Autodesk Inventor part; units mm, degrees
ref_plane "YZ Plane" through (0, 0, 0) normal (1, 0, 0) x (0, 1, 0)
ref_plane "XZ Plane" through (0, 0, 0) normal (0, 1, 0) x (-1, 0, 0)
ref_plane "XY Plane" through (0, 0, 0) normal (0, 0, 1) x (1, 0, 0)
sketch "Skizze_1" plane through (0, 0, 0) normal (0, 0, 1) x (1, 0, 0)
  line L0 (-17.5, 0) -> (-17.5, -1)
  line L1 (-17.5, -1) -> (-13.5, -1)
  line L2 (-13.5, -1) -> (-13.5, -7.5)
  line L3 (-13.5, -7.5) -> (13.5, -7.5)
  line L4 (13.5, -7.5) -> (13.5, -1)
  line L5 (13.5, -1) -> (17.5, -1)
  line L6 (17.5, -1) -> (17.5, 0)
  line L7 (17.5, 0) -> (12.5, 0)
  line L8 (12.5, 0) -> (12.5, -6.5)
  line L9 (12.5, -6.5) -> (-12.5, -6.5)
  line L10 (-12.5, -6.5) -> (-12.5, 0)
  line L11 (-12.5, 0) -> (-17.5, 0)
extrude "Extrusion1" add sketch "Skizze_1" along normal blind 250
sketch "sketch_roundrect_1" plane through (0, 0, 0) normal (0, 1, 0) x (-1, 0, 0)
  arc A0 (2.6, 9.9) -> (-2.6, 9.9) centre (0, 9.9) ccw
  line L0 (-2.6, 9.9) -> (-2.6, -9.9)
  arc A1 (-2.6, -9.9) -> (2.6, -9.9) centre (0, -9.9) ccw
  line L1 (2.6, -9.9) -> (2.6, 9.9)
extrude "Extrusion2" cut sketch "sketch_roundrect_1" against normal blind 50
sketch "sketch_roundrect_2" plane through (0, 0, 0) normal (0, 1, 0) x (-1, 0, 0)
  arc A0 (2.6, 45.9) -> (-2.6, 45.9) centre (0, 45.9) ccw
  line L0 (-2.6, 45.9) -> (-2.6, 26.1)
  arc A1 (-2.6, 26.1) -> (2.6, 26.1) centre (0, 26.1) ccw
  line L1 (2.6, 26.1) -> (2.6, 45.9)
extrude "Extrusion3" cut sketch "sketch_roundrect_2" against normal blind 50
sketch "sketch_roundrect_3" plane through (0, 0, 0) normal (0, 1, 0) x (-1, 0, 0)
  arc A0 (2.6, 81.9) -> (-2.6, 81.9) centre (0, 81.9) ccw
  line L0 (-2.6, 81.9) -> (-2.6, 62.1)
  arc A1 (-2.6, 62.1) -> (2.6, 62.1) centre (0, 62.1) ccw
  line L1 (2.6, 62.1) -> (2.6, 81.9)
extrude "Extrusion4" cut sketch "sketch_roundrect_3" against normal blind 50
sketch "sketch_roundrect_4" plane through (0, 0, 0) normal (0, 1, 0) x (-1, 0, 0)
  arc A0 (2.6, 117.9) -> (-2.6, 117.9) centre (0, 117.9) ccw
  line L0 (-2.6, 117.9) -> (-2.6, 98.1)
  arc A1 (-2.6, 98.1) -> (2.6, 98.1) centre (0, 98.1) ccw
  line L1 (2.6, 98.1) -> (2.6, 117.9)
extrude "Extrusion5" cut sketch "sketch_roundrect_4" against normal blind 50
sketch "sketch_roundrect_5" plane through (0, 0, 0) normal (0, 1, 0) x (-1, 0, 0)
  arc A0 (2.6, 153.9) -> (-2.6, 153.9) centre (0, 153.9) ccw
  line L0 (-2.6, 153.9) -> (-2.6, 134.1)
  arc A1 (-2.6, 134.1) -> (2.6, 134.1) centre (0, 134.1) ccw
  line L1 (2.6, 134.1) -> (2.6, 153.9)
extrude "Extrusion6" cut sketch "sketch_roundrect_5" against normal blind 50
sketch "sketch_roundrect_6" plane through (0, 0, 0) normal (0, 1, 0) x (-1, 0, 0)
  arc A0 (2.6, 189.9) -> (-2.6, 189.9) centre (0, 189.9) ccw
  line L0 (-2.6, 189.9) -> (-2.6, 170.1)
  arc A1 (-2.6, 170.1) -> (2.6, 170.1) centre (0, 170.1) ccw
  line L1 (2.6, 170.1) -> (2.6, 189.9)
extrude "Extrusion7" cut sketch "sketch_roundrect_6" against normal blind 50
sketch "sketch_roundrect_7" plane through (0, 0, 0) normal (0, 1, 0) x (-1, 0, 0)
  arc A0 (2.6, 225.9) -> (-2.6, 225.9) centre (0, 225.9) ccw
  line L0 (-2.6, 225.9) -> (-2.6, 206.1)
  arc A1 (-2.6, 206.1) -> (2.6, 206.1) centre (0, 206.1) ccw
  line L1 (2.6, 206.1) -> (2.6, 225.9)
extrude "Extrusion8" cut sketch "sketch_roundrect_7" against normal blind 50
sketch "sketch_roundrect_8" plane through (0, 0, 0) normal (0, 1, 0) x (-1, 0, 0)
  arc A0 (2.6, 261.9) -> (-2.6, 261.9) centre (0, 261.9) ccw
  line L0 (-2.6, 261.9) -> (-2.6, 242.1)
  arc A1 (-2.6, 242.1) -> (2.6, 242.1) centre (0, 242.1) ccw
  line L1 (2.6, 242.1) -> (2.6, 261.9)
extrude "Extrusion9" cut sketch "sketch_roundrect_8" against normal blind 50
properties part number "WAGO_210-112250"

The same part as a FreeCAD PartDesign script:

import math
import FreeCAD as App
import Part
import Sketcher
from FreeCAD import Vector

doc = App.newDocument("Part")
body = doc.addObject("PartDesign::Body", "Body")

# Sketch on XY plane
sketch1 = doc.addObject("Sketcher::SketchObject", "Sketch")
body.addObject(sketch1)
sketch1.AttachmentSupport = (doc.XY_Plane, [""])
sketch1.MapMode = "FlatFace"
sketch1.addGeometry(Part.LineSegment(Vector(-12.5, 0, 0), Vector(-17.5, 0, 0)), False)
sketch1.addGeometry(Part.LineSegment(Vector(-17.5, 0, 0), Vector(-17.5, -1, 0)), False)
sketch1.addGeometry(Part.LineSegment(Vector(-17.5, -1, 0), Vector(-13.5, -1, 0)), False)
sketch1.addGeometry(Part.LineSegment(Vector(-13.5, -1, 0), Vector(-13.5, -7.5, 0)), False)
sketch1.addGeometry(Part.LineSegment(Vector(-13.5, -7.5, 0), Vector(13.5, -7.5, 0)), False)
sketch1.addGeometry(Part.LineSegment(Vector(13.5, -7.5, 0), Vector(13.5, -1, 0)), False)
sketch1.addGeometry(Part.LineSegment(Vector(13.5, -1, 0), Vector(17.5, -1, 0)), False)
sketch1.addGeometry(Part.LineSegment(Vector(17.5, -1, 0), Vector(17.5, 0, 0)), False)
sketch1.addGeometry(Part.LineSegment(Vector(17.5, 0, 0), Vector(12.5, 0, 0)), False)
sketch1.addGeometry(Part.LineSegment(Vector(12.5, 0, 0), Vector(12.5, -6.5, 0)), False)
sketch1.addGeometry(Part.LineSegment(Vector(12.5, -6.5, 0), Vector(-12.5, -6.5, 0)), False)
sketch1.addGeometry(Part.LineSegment(Vector(-12.5, -6.5, 0), Vector(-12.5, 0, 0)), False)
sketch1.addConstraint(Sketcher.Constraint("Coincident", 0, 2, 1, 1))
sketch1.addConstraint(Sketcher.Constraint("Coincident", 1, 2, 2, 1))
sketch1.addConstraint(Sketcher.Constraint("Coincident", 2, 2, 3, 1))
sketch1.addConstraint(Sketcher.Constraint("Coincident", 3, 2, 4, 1))
sketch1.addConstraint(Sketcher.Constraint("Coincident", 4, 2, 5, 1))
sketch1.addConstraint(Sketcher.Constraint("Coincident", 5, 2, 6, 1))
sketch1.addConstraint(Sketcher.Constraint("Coincident", 6, 2, 7, 1))
sketch1.addConstraint(Sketcher.Constraint("Coincident", 7, 2, 8, 1))
sketch1.addConstraint(Sketcher.Constraint("Coincident", 8, 2, 9, 1))
sketch1.addConstraint(Sketcher.Constraint("Coincident", 9, 2, 10, 1))
sketch1.addConstraint(Sketcher.Constraint("Coincident", 10, 2, 11, 1))
sketch1.addConstraint(Sketcher.Constraint("Coincident", 11, 2, 0, 1))
sketch1.addConstraint(Sketcher.Constraint("Horizontal", 0))
sketch1.addConstraint(Sketcher.Constraint("Vertical", 1))
sketch1.addConstraint(Sketcher.Constraint("Horizontal", 2))
sketch1.addConstraint(Sketcher.Constraint("Vertical", 3))
sketch1.addConstraint(Sketcher.Constraint("Horizontal", 4))
sketch1.addConstraint(Sketcher.Constraint("Vertical", 5))
sketch1.addConstraint(Sketcher.Constraint("Horizontal", 6))
sketch1.addConstraint(Sketcher.Constraint("Vertical", 7))
sketch1.addConstraint(Sketcher.Constraint("Horizontal", 8))
sketch1.addConstraint(Sketcher.Constraint("Vertical", 9))
sketch1.addConstraint(Sketcher.Constraint("Horizontal", 10))
sketch1.addConstraint(Sketcher.Constraint("Vertical", 11))
sketch1.addConstraint(Sketcher.Constraint("Symmetric", 0, 2, 7, 2, -1, 1))
sketch1.addConstraint(Sketcher.Constraint("Symmetric", 2, 2, 5, 2, -2))
sketch1.addConstraint(Sketcher.Constraint("Symmetric", 8, 2, 11, 2, -2))
sketch1.addConstraint(Sketcher.Constraint("Equal", 5, 9))
sketch1.addConstraint(Sketcher.Constraint("DistanceX", 0, 2, 0, 1, 5.0))
sketch1.addConstraint(Sketcher.Constraint("DistanceX", 2, 1, 2, 2, 4.0))
sketch1.addConstraint(Sketcher.Constraint("DistanceX", 4, 1, 4, 2, 27.0))
sketch1.addConstraint(Sketcher.Constraint("DistanceY", 1, 2, 1, 1, 1.0))
sketch1.addConstraint(Sketcher.Constraint("DistanceY", 3, 2, 3, 1, 6.5))
pad1 = doc.addObject("PartDesign::Pad", "Pad")
body.addObject(pad1)
pad1.Profile = sketch1
pad1.Length = 250

# Sketch on XZ plane
sketch2 = doc.addObject("Sketcher::SketchObject", "Sketch001")
body.addObject(sketch2)
sketch2.AttachmentSupport = (doc.XZ_Plane, [""])
sketch2.MapMode = "FlatFace"
sketch2.addGeometry(Part.LineSegment(Vector(-2.6, -9.9, 0), Vector(-2.6, 9.9, 0)), False)
sketch2.addGeometry(Part.ArcOfCircle(Part.Circle(Vector(0, 9.9, 0), Vector(0, 0, 1), 2.6), math.radians(0), math.radians(180)), False)
sketch2.addGeometry(Part.LineSegment(Vector(2.6, 9.9, 0), Vector(2.6, -9.9, 0)), False)
sketch2.addGeometry(Part.ArcOfCircle(Part.Circle(Vector(0, -9.9, 0), Vector(0, 0, 1), 2.6), math.radians(180), math.radians(360)), False)
sketch2.addConstraint(Sketcher.Constraint("Tangent", 0, 2, 1, 2))
sketch2.addConstraint(Sketcher.Constraint("Tangent", 1, 1, 2, 1))
sketch2.addConstraint(Sketcher.Constraint("Tangent", 2, 2, 3, 2))
sketch2.addConstraint(Sketcher.Constraint("Tangent", 3, 1, 0, 1))
sketch2.addConstraint(Sketcher.Constraint("Vertical", 0))
sketch2.addConstraint(Sketcher.Constraint("Vertical", 2))
sketch2.addConstraint(Sketcher.Constraint("Symmetric", 1, 3, 3, 3, -1, 1))
sketch2.addConstraint(Sketcher.Constraint("Radius", 1, 2.6))
sketch2.addConstraint(Sketcher.Constraint("DistanceY", 0, 1, 0, 2, 19.8))
pocket1 = doc.addObject("PartDesign::Pocket", "Pocket")
body.addObject(pocket1)
pocket1.Profile = sketch2
pocket1.Length = 50
pocket1.Reversed = True

# Sketch on XZ plane
sketch3 = doc.addObject("Sketcher::SketchObject", "Sketch002")
body.addObject(sketch3)
sketch3.AttachmentSupport = (doc.XZ_Plane, [""])
sketch3.MapMode = "FlatFace"
sketch3.addGeometry(Part.LineSegment(Vector(-2.6, 26.1, 0), Vector(-2.6, 45.9, 0)), False)
sketch3.addGeometry(Part.ArcOfCircle(Part.Circle(Vector(0, 45.9, 0), Vector(0, 0, 1), 2.6), math.radians(0), math.radians(180)), False)
sketch3.addGeometry(Part.LineSegment(Vector(2.6, 45.9, 0), Vector(2.6, 26.1, 0)), False)
sketch3.addGeometry(Part.ArcOfCircle(Part.Circle(Vector(0, 26.1, 0), Vector(0, 0, 1), 2.6), math.radians(180), math.radians(360)), False)
sketch3.addConstraint(Sketcher.Constraint("Tangent", 0, 2, 1, 2))
sketch3.addConstraint(Sketcher.Constraint("Tangent", 1, 1, 2, 1))
sketch3.addConstraint(Sketcher.Constraint("Tangent", 2, 2, 3, 2))
sketch3.addConstraint(Sketcher.Constraint("Tangent", 3, 1, 0, 1))
sketch3.addConstraint(Sketcher.Constraint("Vertical", 0))
sketch3.addConstraint(Sketcher.Constraint("Vertical", 2))
sketch3.addConstraint(Sketcher.Constraint("PointOnObject", 1, 3, -2))
sketch3.addConstraint(Sketcher.Constraint("Radius", 1, 2.6))
sketch3.addConstraint(Sketcher.Constraint("DistanceY", 0, 1, 0, 2, 19.8))
sketch3.addConstraint(Sketcher.Constraint("DistanceY", -1, 1, 1, 3, 45.9))
pocket2 = doc.addObject("PartDesign::Pocket", "Pocket001")
body.addObject(pocket2)
pocket2.Profile = sketch3
pocket2.Length = 50
pocket2.Reversed = True

# Sketch on XZ plane
sketch4 = doc.addObject("Sketcher::SketchObject", "Sketch003")
body.addObject(sketch4)
sketch4.AttachmentSupport = (doc.XZ_Plane, [""])
sketch4.MapMode = "FlatFace"
sketch4.addGeometry(Part.LineSegment(Vector(-2.6, 62.1, 0), Vector(-2.6, 81.9, 0)), False)
sketch4.addGeometry(Part.ArcOfCircle(Part.Circle(Vector(0, 81.9, 0), Vector(0, 0, 1), 2.6), math.radians(0), math.radians(180)), False)
sketch4.addGeometry(Part.LineSegment(Vector(2.6, 81.9, 0), Vector(2.6, 62.1, 0)), False)
sketch4.addGeometry(Part.ArcOfCircle(Part.Circle(Vector(0, 62.1, 0), Vector(0, 0, 1), 2.6), math.radians(180), math.radians(360)), False)
sketch4.addConstraint(Sketcher.Constraint("Tangent", 0, 2, 1, 2))
sketch4.addConstraint(Sketcher.Constraint("Tangent", 1, 1, 2, 1))
sketch4.addConstraint(Sketcher.Constraint("Tangent", 2, 2, 3, 2))
sketch4.addConstraint(Sketcher.Constraint("Tangent", 3, 1, 0, 1))
sketch4.addConstraint(Sketcher.Constraint("Vertical", 0))
sketch4.addConstraint(Sketcher.Constraint("Vertical", 2))
sketch4.addConstraint(Sketcher.Constraint("PointOnObject", 1, 3, -2))
sketch4.addConstraint(Sketcher.Constraint("Radius", 1, 2.6))
sketch4.addConstraint(Sketcher.Constraint("DistanceY", 0, 1, 0, 2, 19.8))
sketch4.addConstraint(Sketcher.Constraint("DistanceY", -1, 1, 1, 3, 81.9))
pocket3 = doc.addObject("PartDesign::Pocket", "Pocket002")
body.addObject(pocket3)
pocket3.Profile = sketch4
pocket3.Length = 50
pocket3.Reversed = True

# Sketch on XZ plane
sketch5 = doc.addObject("Sketcher::SketchObject", "Sketch004")
body.addObject(sketch5)
sketch5.AttachmentSupport = (doc.XZ_Plane, [""])
sketch5.MapMode = "FlatFace"
sketch5.addGeometry(Part.LineSegment(Vector(-2.6, 98.1, 0), Vector(-2.6, 117.9, 0)), False)
sketch5.addGeometry(Part.ArcOfCircle(Part.Circle(Vector(0, 117.9, 0), Vector(0, 0, 1), 2.6), math.radians(0), math.radians(180)), False)
sketch5.addGeometry(Part.LineSegment(Vector(2.6, 117.9, 0), Vector(2.6, 98.1, 0)), False)
sketch5.addGeometry(Part.ArcOfCircle(Part.Circle(Vector(0, 98.1, 0), Vector(0, 0, 1), 2.6), math.radians(180), math.radians(360)), False)
sketch5.addConstraint(Sketcher.Constraint("Tangent", 0, 2, 1, 2))
sketch5.addConstraint(Sketcher.Constraint("Tangent", 1, 1, 2, 1))
sketch5.addConstraint(Sketcher.Constraint("Tangent", 2, 2, 3, 2))
sketch5.addConstraint(Sketcher.Constraint("Tangent", 3, 1, 0, 1))
sketch5.addConstraint(Sketcher.Constraint("Vertical", 0))
sketch5.addConstraint(Sketcher.Constraint("Vertical", 2))
sketch5.addConstraint(Sketcher.Constraint("PointOnObject", 1, 3, -2))
sketch5.addConstraint(Sketcher.Constraint("Radius", 1, 2.6))
sketch5.addConstraint(Sketcher.Constraint("DistanceY", 0, 1, 0, 2, 19.8))
sketch5.addConstraint(Sketcher.Constraint("DistanceY", -1, 1, 1, 3, 117.9))
pocket4 = doc.addObject("PartDesign::Pocket", "Pocket003")
body.addObject(pocket4)
pocket4.Profile = sketch5
pocket4.Length = 50
pocket4.Reversed = True

# Sketch on XZ plane
sketch6 = doc.addObject("Sketcher::SketchObject", "Sketch005")
body.addObject(sketch6)
sketch6.AttachmentSupport = (doc.XZ_Plane, [""])
sketch6.MapMode = "FlatFace"
sketch6.addGeometry(Part.LineSegment(Vector(-2.6, 134.1, 0), Vector(-2.6, 153.9, 0)), False)
sketch6.addGeometry(Part.ArcOfCircle(Part.Circle(Vector(0, 153.9, 0), Vector(0, 0, 1), 2.6), math.radians(0), math.radians(180)), False)
sketch6.addGeometry(Part.LineSegment(Vector(2.6, 153.9, 0), Vector(2.6, 134.1, 0)), False)
sketch6.addGeometry(Part.ArcOfCircle(Part.Circle(Vector(0, 134.1, 0), Vector(0, 0, 1), 2.6), math.radians(180), math.radians(360)), False)
sketch6.addConstraint(Sketcher.Constraint("Tangent", 0, 2, 1, 2))
sketch6.addConstraint(Sketcher.Constraint("Tangent", 1, 1, 2, 1))
sketch6.addConstraint(Sketcher.Constraint("Tangent", 2, 2, 3, 2))
sketch6.addConstraint(Sketcher.Constraint("Tangent", 3, 1, 0, 1))
sketch6.addConstraint(Sketcher.Constraint("Vertical", 0))
sketch6.addConstraint(Sketcher.Constraint("Vertical", 2))
sketch6.addConstraint(Sketcher.Constraint("PointOnObject", 1, 3, -2))
sketch6.addConstraint(Sketcher.Constraint("Radius", 1, 2.6))
sketch6.addConstraint(Sketcher.Constraint("DistanceY", 0, 1, 0, 2, 19.8))
sketch6.addConstraint(Sketcher.Constraint("DistanceY", -1, 1, 1, 3, 153.9))
pocket5 = doc.addObject("PartDesign::Pocket", "Pocket004")
body.addObject(pocket5)
pocket5.Profile = sketch6
pocket5.Length = 50
pocket5.Reversed = True

# Sketch on XZ plane
sketch7 = doc.addObject("Sketcher::SketchObject", "Sketch006")
body.addObject(sketch7)
sketch7.AttachmentSupport = (doc.XZ_Plane, [""])
sketch7.MapMode = "FlatFace"
sketch7.addGeometry(Part.LineSegment(Vector(-2.6, 170.1, 0), Vector(-2.6, 189.9, 0)), False)
sketch7.addGeometry(Part.ArcOfCircle(Part.Circle(Vector(0, 189.9, 0), Vector(0, 0, 1), 2.6), math.radians(0), math.radians(180)), False)
sketch7.addGeometry(Part.LineSegment(Vector(2.6, 189.9, 0), Vector(2.6, 170.1, 0)), False)
sketch7.addGeometry(Part.ArcOfCircle(Part.Circle(Vector(0, 170.1, 0), Vector(0, 0, 1), 2.6), math.radians(180), math.radians(360)), False)
sketch7.addConstraint(Sketcher.Constraint("Tangent", 0, 2, 1, 2))
sketch7.addConstraint(Sketcher.Constraint("Tangent", 1, 1, 2, 1))
sketch7.addConstraint(Sketcher.Constraint("Tangent", 2, 2, 3, 2))
sketch7.addConstraint(Sketcher.Constraint("Tangent", 3, 1, 0, 1))
sketch7.addConstraint(Sketcher.Constraint("Vertical", 0))
sketch7.addConstraint(Sketcher.Constraint("Vertical", 2))
sketch7.addConstraint(Sketcher.Constraint("PointOnObject", 1, 3, -2))
sketch7.addConstraint(Sketcher.Constraint("Radius", 1, 2.6))
sketch7.addConstraint(Sketcher.Constraint("DistanceY", 0, 1, 0, 2, 19.8))
sketch7.addConstraint(Sketcher.Constraint("DistanceY", -1, 1, 1, 3, 189.9))
pocket6 = doc.addObject("PartDesign::Pocket", "Pocket005")
body.addObject(pocket6)
pocket6.Profile = sketch7
pocket6.Length = 50
pocket6.Reversed = True

# Sketch on XZ plane
sketch8 = doc.addObject("Sketcher::SketchObject", "Sketch007")
body.addObject(sketch8)
sketch8.AttachmentSupport = (doc.XZ_Plane, [""])
sketch8.MapMode = "FlatFace"
sketch8.addGeometry(Part.LineSegment(Vector(-2.6, 206.1, 0), Vector(-2.6, 225.9, 0)), False)
sketch8.addGeometry(Part.ArcOfCircle(Part.Circle(Vector(0, 225.9, 0), Vector(0, 0, 1), 2.6), math.radians(0), math.radians(180)), False)
sketch8.addGeometry(Part.LineSegment(Vector(2.6, 225.9, 0), Vector(2.6, 206.1, 0)), False)
sketch8.addGeometry(Part.ArcOfCircle(Part.Circle(Vector(0, 206.1, 0), Vector(0, 0, 1), 2.6), math.radians(180), math.radians(360)), False)
sketch8.addConstraint(Sketcher.Constraint("Tangent", 0, 2, 1, 2))
sketch8.addConstraint(Sketcher.Constraint("Tangent", 1, 1, 2, 1))
sketch8.addConstraint(Sketcher.Constraint("Tangent", 2, 2, 3, 2))
sketch8.addConstraint(Sketcher.Constraint("Tangent", 3, 1, 0, 1))
sketch8.addConstraint(Sketcher.Constraint("Vertical", 0))
sketch8.addConstraint(Sketcher.Constraint("Vertical", 2))
sketch8.addConstraint(Sketcher.Constraint("PointOnObject", 1, 3, -2))
sketch8.addConstraint(Sketcher.Constraint("Radius", 1, 2.6))
sketch8.addConstraint(Sketcher.Constraint("DistanceY", 0, 1, 0, 2, 19.8))
sketch8.addConstraint(Sketcher.Constraint("DistanceY", -1, 1, 1, 3, 225.9))
pocket7 = doc.addObject("PartDesign::Pocket", "Pocket006")
body.addObject(pocket7)
pocket7.Profile = sketch8
pocket7.Length = 50
pocket7.Reversed = True

# Sketch on XZ plane
sketch9 = doc.addObject("Sketcher::SketchObject", "Sketch008")
body.addObject(sketch9)
sketch9.AttachmentSupport = (doc.XZ_Plane, [""])
sketch9.MapMode = "FlatFace"
sketch9.addGeometry(Part.LineSegment(Vector(-2.6, 242.1, 0), Vector(-2.6, 261.9, 0)), False)
sketch9.addGeometry(Part.ArcOfCircle(Part.Circle(Vector(0, 261.9, 0), Vector(0, 0, 1), 2.6), math.radians(0), math.radians(180)), False)
sketch9.addGeometry(Part.LineSegment(Vector(2.6, 261.9, 0), Vector(2.6, 242.1, 0)), False)
sketch9.addGeometry(Part.ArcOfCircle(Part.Circle(Vector(0, 242.1, 0), Vector(0, 0, 1), 2.6), math.radians(180), math.radians(360)), False)
sketch9.addConstraint(Sketcher.Constraint("Tangent", 0, 2, 1, 2))
sketch9.addConstraint(Sketcher.Constraint("Tangent", 1, 1, 2, 1))
sketch9.addConstraint(Sketcher.Constraint("Tangent", 2, 2, 3, 2))
sketch9.addConstraint(Sketcher.Constraint("Tangent", 3, 1, 0, 1))
sketch9.addConstraint(Sketcher.Constraint("Vertical", 0))
sketch9.addConstraint(Sketcher.Constraint("Vertical", 2))
sketch9.addConstraint(Sketcher.Constraint("PointOnObject", 1, 3, -2))
sketch9.addConstraint(Sketcher.Constraint("Radius", 1, 2.6))
sketch9.addConstraint(Sketcher.Constraint("DistanceY", 0, 1, 0, 2, 19.8))
sketch9.addConstraint(Sketcher.Constraint("DistanceY", -1, 1, 1, 3, 261.9))
pocket8 = doc.addObject("PartDesign::Pocket", "Pocket007")
body.addObject(pocket8)
pocket8.Profile = sketch9
pocket8.Length = 50
pocket8.Reversed = True

doc.recompute()
